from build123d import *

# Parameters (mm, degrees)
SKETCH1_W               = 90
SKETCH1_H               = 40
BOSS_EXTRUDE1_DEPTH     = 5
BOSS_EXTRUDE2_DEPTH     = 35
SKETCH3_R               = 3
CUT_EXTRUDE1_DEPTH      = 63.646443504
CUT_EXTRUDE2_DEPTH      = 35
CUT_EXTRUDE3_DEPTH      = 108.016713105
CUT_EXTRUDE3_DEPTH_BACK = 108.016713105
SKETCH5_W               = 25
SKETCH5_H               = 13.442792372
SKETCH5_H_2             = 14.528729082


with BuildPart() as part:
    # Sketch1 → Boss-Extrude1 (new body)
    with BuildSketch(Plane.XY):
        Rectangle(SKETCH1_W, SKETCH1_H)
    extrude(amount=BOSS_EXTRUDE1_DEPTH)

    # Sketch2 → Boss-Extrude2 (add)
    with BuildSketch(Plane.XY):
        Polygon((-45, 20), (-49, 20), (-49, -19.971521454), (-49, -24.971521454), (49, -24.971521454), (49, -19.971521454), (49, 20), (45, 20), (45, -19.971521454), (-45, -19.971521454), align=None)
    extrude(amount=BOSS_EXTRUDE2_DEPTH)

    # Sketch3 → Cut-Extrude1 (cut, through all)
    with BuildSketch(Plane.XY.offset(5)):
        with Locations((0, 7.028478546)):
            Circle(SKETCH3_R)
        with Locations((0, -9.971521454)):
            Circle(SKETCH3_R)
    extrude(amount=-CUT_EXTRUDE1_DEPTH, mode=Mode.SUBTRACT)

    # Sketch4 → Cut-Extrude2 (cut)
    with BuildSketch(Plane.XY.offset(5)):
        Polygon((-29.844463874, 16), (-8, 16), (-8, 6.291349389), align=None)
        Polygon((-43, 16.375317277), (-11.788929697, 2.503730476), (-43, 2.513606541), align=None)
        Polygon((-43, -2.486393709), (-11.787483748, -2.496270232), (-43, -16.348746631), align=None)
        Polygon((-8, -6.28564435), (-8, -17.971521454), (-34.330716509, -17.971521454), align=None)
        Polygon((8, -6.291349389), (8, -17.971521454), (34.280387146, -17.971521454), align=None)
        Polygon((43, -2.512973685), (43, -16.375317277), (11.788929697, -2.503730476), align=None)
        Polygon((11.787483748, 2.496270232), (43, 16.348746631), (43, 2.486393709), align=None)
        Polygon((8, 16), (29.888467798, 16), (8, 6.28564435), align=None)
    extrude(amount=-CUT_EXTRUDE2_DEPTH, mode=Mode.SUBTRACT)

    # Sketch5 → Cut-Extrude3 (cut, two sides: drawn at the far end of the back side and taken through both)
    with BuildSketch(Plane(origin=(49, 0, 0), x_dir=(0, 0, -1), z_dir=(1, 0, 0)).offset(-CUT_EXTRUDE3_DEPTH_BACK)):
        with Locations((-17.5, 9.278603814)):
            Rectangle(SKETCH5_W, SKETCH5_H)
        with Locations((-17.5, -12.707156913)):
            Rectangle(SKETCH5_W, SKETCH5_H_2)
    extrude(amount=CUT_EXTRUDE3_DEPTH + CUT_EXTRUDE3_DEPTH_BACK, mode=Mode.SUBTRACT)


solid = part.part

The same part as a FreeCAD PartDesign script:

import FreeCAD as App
import Part
import Sketcher
from FreeCAD import Vector


def add_polygon(sketch, points):
    """Adds a closed chain of lines whose ends are joined by coincident constraints."""
    first, n = sketch.GeometryCount, len(points)
    for a, b in zip(points, points[1:] + points[:1]):
        sketch.addGeometry(Part.LineSegment(App.Vector(*a, 0), App.Vector(*b, 0)), False)
    for i in range(n):
        sketch.addConstraint(Sketcher.Constraint("Coincident", first + i, 2, first + (i + 1) % n, 1))

doc = App.newDocument("Part")
params = doc.addObject("Spreadsheet::Sheet", "Params")
for row, (alias, value) in enumerate([
    ("sketch1_width", "90 mm"),
    ("sketch1_height", "40 mm"),
    ("pad1_length", "5 mm"),
    ("sketch2_width", "4 mm"),
    ("sketch2_width2", "98 mm"),
    ("pad2_length", "35 mm"),
    ("sketch3_diameter", "6 mm"),
    ("pocket2_length", "35 mm"),
    ("sketch5_height", "25 mm"),
], start=1):
    params.set(f"A{row}", alias)
    params.set(f"B{row}", "=" + value)
    params.setAlias(f"B{row}", alias)

body = doc.addObject("PartDesign::Body", "Body")

sketch1 = doc.addObject("Sketcher::SketchObject", "Sketch")
body.addObject(sketch1)
sketch1.AttachmentSupport = (doc.XY_Plane, [""])
sketch1.MapMode = "FlatFace"
add_polygon(sketch1, [(-45, 20), (-45, -20), (45, -20), (45, 20)])
sketch1.addConstraint([
    Sketcher.Constraint("Vertical", 0),
    Sketcher.Constraint("Horizontal", 1),
    Sketcher.Constraint("Vertical", 2),
    Sketcher.Constraint("Horizontal", 3),
    Sketcher.Constraint("Symmetric", 0, 2, 2, 2, -1, 1),
    Sketcher.Constraint("DistanceX", 1, 1, 1, 2, 90.0),
    Sketcher.Constraint("DistanceY", 0, 2, 0, 1, 40.0),
])
sketch1.setExpression("Constraints[9]", "Params.sketch1_width")
sketch1.setExpression("Constraints[10]", "Params.sketch1_height")
pad1 = doc.addObject("PartDesign::Pad", "Pad")
body.addObject(pad1)
pad1.Profile = sketch1
pad1.setExpression("Length", "Params.pad1_length")

sketch2 = doc.addObject("Sketcher::SketchObject", "Sketch001")
body.addObject(sketch2)
sketch2.AttachmentSupport = (doc.XY_Plane, [""])
sketch2.MapMode = "FlatFace"
add_polygon(sketch2, [(-45, 20), (-49, 20), (-49, -25), (49, -25), (49, 20), (45, 20), (45, -20), (-45, -20)])
sketch2.addConstraint([
    Sketcher.Constraint("Horizontal", 0),
    Sketcher.Constraint("Vertical", 1),
    Sketcher.Constraint("Horizontal", 2),
    Sketcher.Constraint("Vertical", 3),
    Sketcher.Constraint("Horizontal", 4),
    Sketcher.Constraint("Vertical", 5),
    Sketcher.Constraint("Horizontal", 6),
    Sketcher.Constraint("Vertical", 7),
    Sketcher.Constraint("Symmetric", 0, 2, 3, 2, -2),
    Sketcher.Constraint("Equal", 0, 4),
    Sketcher.Constraint("DistanceX", 0, 2, 0, 1, 4.0),
    Sketcher.Constraint("DistanceX", 2, 1, 2, 2, 98.0),
    Sketcher.Constraint("DistanceY", -1, 1, 0, 2, 20.0),
    Sketcher.Constraint("DistanceY", 2, 2, 5, 2, 5.0),
    Sketcher.Constraint("DistanceY", 1, 2, 1, 1, 44.971521),
])
sketch2.setExpression("Constraints[18]", "Params.sketch2_width")
sketch2.setExpression("Constraints[19]", "Params.sketch2_width2")
pad2 = doc.addObject("PartDesign::Pad", "Pad001")
body.addObject(pad2)
pad2.Profile = sketch2
pad2.setExpression("Length", "Params.pad2_length")

sketch3 = doc.addObject("Sketcher::SketchObject", "Sketch002")
body.addObject(sketch3)
sketch3.AttachmentSupport = (doc.XY_Plane, [""])
sketch3.MapMode = "FlatFace"
sketch3.AttachmentOffset = App.Placement(Vector(0, 0, 5), App.Rotation())
sketch3.addGeometry([
    Part.Circle(Vector(0, 7, 0), Vector(0, 0, 1), 3),
    Part.Circle(Vector(0, -10, 0), Vector(0, 0, 1), 3),
], False)
sketch3.addConstraint([
    Sketcher.Constraint("Equal", 0, 1),
    Sketcher.Constraint("PointOnObject", 0, 3, -2),
    Sketcher.Constraint("PointOnObject", 1, 3, -2),
    Sketcher.Constraint("Diameter", 0, 6.0),
    Sketcher.Constraint("DistanceY", 1, 3, 0, 3, 17.0),
    Sketcher.Constraint("DistanceY", -1, 1, 0, 3, 7.028479),
])
sketch3.setExpression("Constraints[3]", "Params.sketch3_diameter")
pocket1 = doc.addObject("PartDesign::Pocket", "Pocket")
body.addObject(pocket1)
pocket1.Profile = sketch3
pocket1.Type = "ThroughAll"

sketch4 = doc.addObject("Sketcher::SketchObject", "Sketch003")
body.addObject(sketch4)
sketch4.AttachmentSupport = (doc.XY_Plane, [""])
sketch4.MapMode = "FlatFace"
sketch4.AttachmentOffset = App.Placement(Vector(0, 0, 5), App.Rotation())
add_polygon(sketch4, [(-8, 16), (-30, 16), (-8, 6)])
add_polygon(sketch4, [(-12, 3), (-43, 16), (-43, 3)])
add_polygon(sketch4, [(-12, -2), (-43, -2), (-43, -16)])
add_polygon(sketch4, [(-8, -18), (-8, -6), (-34, -18)])
add_polygon(sketch4, [(8, -6), (8, -18), (34, -18)])
add_polygon(sketch4, [(43, -16), (43, -3), (12, -3)])
add_polygon(sketch4, [(43, 16), (12, 2), (43, 2)])
add_polygon(sketch4, [(30, 16), (8, 16), (8, 6)])
sketch4.addConstraint([
    Sketcher.Constraint("Horizontal", 0),
    Sketcher.Constraint("Vertical", 2),
    Sketcher.Constraint("Vertical", 4),
    Sketcher.Constraint("Vertical", 7),
    Sketcher.Constraint("Vertical", 9),
    Sketcher.Constraint("Horizontal", 11),
    Sketcher.Constraint("Vertical", 12),
    Sketcher.Constraint("Horizontal", 13),
    Sketcher.Constraint("Vertical", 15),
    Sketcher.Constraint("Vertical", 20),
    Sketcher.Constraint("Horizontal", 21),
    Sketcher.Constraint("Vertical", 22),
    Sketcher.Constraint("Symmetric", 1, 2, 14, 2, -1, 1),
    Sketcher.Constraint("Symmetric", 5, 2, 16, 2, -1, 1),
    Sketcher.Constraint("Symmetric", 3, 2, 17, 2, -1, 1),
    Sketcher.Constraint("Symmetric", 8, 2, 18, 2, -1, 1),
    Sketcher.Constraint("Symmetric", 6, 2, 19, 2, -1, 1),
    Sketcher.Constraint("Symmetric", 9, 2, 22, 2, -1, 1),
    Sketcher.Constraint("Symmetric", 11, 2, 12, 2, -2),
    Sketcher.Constraint("Parallel", 1, 3),
    Sketcher.Constraint("Parallel", 5, 6),
    Sketcher.Constraint("Parallel", 8, 10),
    Sketcher.Constraint("Parallel", 3, 14),
    Sketcher.Constraint("Parallel", 10, 18),
    Sketcher.Constraint("Parallel", 18, 23),
    Sketcher.Constraint("Horizontal", 2, 2, 21, 2),
    Sketcher.Constraint("Vertical", 4, 2, 6, 2),
    Sketcher.Constraint("DistanceY", -1, 1, 0, 2, 16.0),
    Sketcher.Constraint("DistanceX", 1, 2, -1, 1, 8.0),
    Sketcher.Constraint("DistanceX", 3, 2, -1, 1, 43.0),
    Sketcher.Constraint("DistanceY", 6, 2, 4, 2, 5.0),
    Sketcher.Constraint("Distance", 10, 28.807401),
    Sketcher.Constraint("DistanceY", 2, 1, 2, 2, 9.708651),
    Sketcher.Constraint("DistanceY", 4, 2, 4, 1, 13.861711),
    Sketcher.Constraint("Distance", 1, 23.90478),
    Sketcher.Constraint("Distance", 3, 34.154821),
    Sketcher.Constraint("Distance", 14, 28.759088),
    Sketcher.Constraint("Distance", 23, 23.947312),
    Sketcher.Constraint("DistanceY", 7, 2, 7, 1, 13.862353),
    Sketcher.Constraint("DistanceY", 15, 1, 15, 2, 13.862344),
    Sketcher.Constraint("DistanceY", -1, 1, 5, 2, 2.50373),
])
pocket2 = doc.addObject("PartDesign::Pocket", "Pocket001")
body.addObject(pocket2)
pocket2.Profile = sketch4
pocket2.setExpression("Length", "Params.pocket2_length")

sketch5 = doc.addObject("Sketcher::SketchObject", "Sketch004")
body.addObject(sketch5)
sketch5.AttachmentSupport = (doc.YZ_Plane, [""])
sketch5.MapMode = "FlatFace"
sketch5.AttachmentOffset = App.Placement(Vector(0, 0, 49), App.Rotation())
add_polygon(sketch5, [(16, 30), (3, 30), (3, 5), (16, 5)])
add_polygon(sketch5, [(-5, 30), (-20, 30), (-20, 5), (-5, 5)])
sketch5.addConstraint([
    Sketcher.Constraint("Horizontal", 0),
    Sketcher.Constraint("Vertical", 1),
    Sketcher.Constraint("Horizontal", 2),
    Sketcher.Constraint("Vertical", 3),
    Sketcher.Constraint("Horizontal", 4),
    Sketcher.Constraint("Vertical", 5),
    Sketcher.Constraint("Horizontal", 6),
    Sketcher.Constraint("Vertical", 7),
    Sketcher.Constraint("Horizontal", 3, 2, 4, 2),
    Sketcher.Constraint("Horizontal", 2, 2, 5, 2),
    Sketcher.Constraint("DistanceY", 1, 2, 1, 1, 25.0),
    Sketcher.Constraint("DistanceY", -1, 1, 0, 2, 30.0),
    Sketcher.Constraint("DistanceX", -1, 1, 2, 2, 16.0),
    Sketcher.Constraint("DistanceX", 6, 2, 1, 2, 8.0),
    Sketcher.Constraint("DistanceX", 4, 2, 4, 1, 14.528729),
    Sketcher.Constraint("DistanceX", 0, 2, 0, 1, 13.442792),
])
sketch5.setExpression("Constraints[18]", "Params.sketch5_height")
pocket3 = doc.addObject("PartDesign::Pocket", "Pocket002")
body.addObject(pocket3)
pocket3.Profile = sketch5
pocket3.Type = "ThroughAll"
pocket3.Midplane = True

doc.recompute()
